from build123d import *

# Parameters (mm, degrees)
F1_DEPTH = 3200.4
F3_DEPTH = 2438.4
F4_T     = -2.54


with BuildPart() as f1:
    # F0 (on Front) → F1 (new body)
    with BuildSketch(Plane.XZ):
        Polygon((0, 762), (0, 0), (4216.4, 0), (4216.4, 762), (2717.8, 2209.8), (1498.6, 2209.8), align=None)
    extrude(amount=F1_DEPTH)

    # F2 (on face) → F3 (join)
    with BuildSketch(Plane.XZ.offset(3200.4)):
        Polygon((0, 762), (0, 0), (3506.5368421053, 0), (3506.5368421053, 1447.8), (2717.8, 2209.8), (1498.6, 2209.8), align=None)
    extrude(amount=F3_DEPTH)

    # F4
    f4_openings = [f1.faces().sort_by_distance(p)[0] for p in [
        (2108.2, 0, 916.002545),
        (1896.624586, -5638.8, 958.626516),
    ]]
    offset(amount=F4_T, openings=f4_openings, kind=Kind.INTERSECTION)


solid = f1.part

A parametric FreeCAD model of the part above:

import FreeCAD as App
import Part
import Sketcher

V = App.Vector
Q = App.Units.Quantity


def faces_at(feature, points):
    """Names of the faces that lie closest to the given points."""
    faces = feature.Shape.Faces
    near = lambda p: min(range(len(faces)), key=lambda i: faces[i].distToShape(Part.Vertex(*p))[0])
    return sorted({f"Face{near(p) + 1}" for p in points})


def add_polygon(sketch, points):
    """Adds a closed chain of lines whose ends are joined by coincident constraints."""
    first, n = sketch.GeometryCount, len(points)
    for a, b in zip(points, points[1:] + points[:1]):
        sketch.addGeometry(Part.LineSegment(App.Vector(*a, 0), App.Vector(*b, 0)), False)
    for i in range(n):
        sketch.addConstraint(Sketcher.Constraint("Coincident", first + i, 2, first + (i + 1) % n, 1))

doc = App.newDocument("Part")
body = doc.addObject("PartDesign::Body", "Body")

# Sketch on XZ plane
sketch1 = doc.addObject("Sketcher::SketchObject", "Sketch")
body.addObject(sketch1)
sketch1.AttachmentSupport = (doc.XZ_Plane, [""])
sketch1.MapMode = "FlatFace"
add_polygon(sketch1, [(0, 762), (0, 0), (4216, 0), (4216, 762), (2718, 2210), (1499, 2210)])  # lines 0-5
sketch1.addConstraint(Sketcher.Constraint("Vertical", 0))
sketch1.addConstraint(Sketcher.Constraint("Horizontal", 1))
sketch1.addConstraint(Sketcher.Constraint("Vertical", 2))
sketch1.addConstraint(Sketcher.Constraint("Horizontal", 4))
sketch1.addConstraint(Sketcher.Constraint("Coincident", 0, 2, -1, 1))
sketch1.addConstraint(Sketcher.Constraint("Horizontal", 2, 2, 5, 2))
sketch1.addConstraint(Sketcher.Constraint("Equal", 3, 5))
sketch1.addConstraint(Sketcher.Constraint("DistanceX", 1, 1, 1, 2, Q("166 in")))
sketch1.addConstraint(Sketcher.Constraint("DistanceX", 4, 2, 4, 1, Q("48 in")))
sketch1.addConstraint(Sketcher.Constraint("DistanceY", 0, 2, 0, 1, Q("30 in")))
sketch1.addConstraint(Sketcher.Constraint("DistanceY", -1, 1, 3, 2, Q("87 in")))
pad1 = doc.addObject("PartDesign::Pad", "Pad")
body.addObject(pad1)
pad1.Profile = sketch1
pad1.Length = Q("126 in")

# Sketch on XZ plane
sketch2 = doc.addObject("Sketcher::SketchObject", "Sketch001")
body.addObject(sketch2)
sketch2.AttachmentSupport = (doc.XZ_Plane, [""])
sketch2.MapMode = "FlatFace"
sketch2.AttachmentOffset = App.Placement(V(0, 0, 126 * 25.4), App.Rotation())
add_polygon(sketch2, [(0, 762), (0, 0), (3507, 0), (3507, 1448), (2718, 2210), (1499, 2210)])  # lines 0-5
sketch2.addConstraint(Sketcher.Constraint("Vertical", 0))
sketch2.addConstraint(Sketcher.Constraint("Horizontal", 1))
sketch2.addConstraint(Sketcher.Constraint("Vertical", 2))
sketch2.addConstraint(Sketcher.Constraint("Horizontal", 4))
sketch2.addConstraint(Sketcher.Constraint("Coincident", 0, 2, -1, 1))
sketch2.addConstraint(Sketcher.Constraint("DistanceX", 4, 2, 4, 1, Q("48 in")))
sketch2.addConstraint(Sketcher.Constraint("DistanceY", 0, 2, 0, 1, Q("30 in")))
sketch2.addConstraint(Sketcher.Constraint("DistanceY", 2, 1, 2, 2, Q("57 in")))
sketch2.addConstraint(Sketcher.Constraint("DistanceX", -1, 1, 3, 2, Q("107 in")))
sketch2.addConstraint(Sketcher.Constraint("DistanceY", -1, 1, 3, 2, Q("87 in")))
sketch2.addConstraint(Sketcher.Constraint("DistanceX", 1, 1, 1, 2, 3506.536842))
pad2 = doc.addObject("PartDesign::Pad", "Pad001")
body.addObject(pad2)
pad2.Profile = sketch2
pad2.Length = Q("96 in")
doc.recompute()

thickness = doc.addObject("PartDesign::Thickness", "Thickness")
body.addObject(thickness)
thickness.Base = (pad2, faces_at(pad2, [(2108.2, 0, 1104.9), (1753.268, -5638.8, 1104.9)]))
thickness.Value = Q("0.1 in")
thickness.Reversed = True
thickness.Join = "Intersection"

doc.recompute()
